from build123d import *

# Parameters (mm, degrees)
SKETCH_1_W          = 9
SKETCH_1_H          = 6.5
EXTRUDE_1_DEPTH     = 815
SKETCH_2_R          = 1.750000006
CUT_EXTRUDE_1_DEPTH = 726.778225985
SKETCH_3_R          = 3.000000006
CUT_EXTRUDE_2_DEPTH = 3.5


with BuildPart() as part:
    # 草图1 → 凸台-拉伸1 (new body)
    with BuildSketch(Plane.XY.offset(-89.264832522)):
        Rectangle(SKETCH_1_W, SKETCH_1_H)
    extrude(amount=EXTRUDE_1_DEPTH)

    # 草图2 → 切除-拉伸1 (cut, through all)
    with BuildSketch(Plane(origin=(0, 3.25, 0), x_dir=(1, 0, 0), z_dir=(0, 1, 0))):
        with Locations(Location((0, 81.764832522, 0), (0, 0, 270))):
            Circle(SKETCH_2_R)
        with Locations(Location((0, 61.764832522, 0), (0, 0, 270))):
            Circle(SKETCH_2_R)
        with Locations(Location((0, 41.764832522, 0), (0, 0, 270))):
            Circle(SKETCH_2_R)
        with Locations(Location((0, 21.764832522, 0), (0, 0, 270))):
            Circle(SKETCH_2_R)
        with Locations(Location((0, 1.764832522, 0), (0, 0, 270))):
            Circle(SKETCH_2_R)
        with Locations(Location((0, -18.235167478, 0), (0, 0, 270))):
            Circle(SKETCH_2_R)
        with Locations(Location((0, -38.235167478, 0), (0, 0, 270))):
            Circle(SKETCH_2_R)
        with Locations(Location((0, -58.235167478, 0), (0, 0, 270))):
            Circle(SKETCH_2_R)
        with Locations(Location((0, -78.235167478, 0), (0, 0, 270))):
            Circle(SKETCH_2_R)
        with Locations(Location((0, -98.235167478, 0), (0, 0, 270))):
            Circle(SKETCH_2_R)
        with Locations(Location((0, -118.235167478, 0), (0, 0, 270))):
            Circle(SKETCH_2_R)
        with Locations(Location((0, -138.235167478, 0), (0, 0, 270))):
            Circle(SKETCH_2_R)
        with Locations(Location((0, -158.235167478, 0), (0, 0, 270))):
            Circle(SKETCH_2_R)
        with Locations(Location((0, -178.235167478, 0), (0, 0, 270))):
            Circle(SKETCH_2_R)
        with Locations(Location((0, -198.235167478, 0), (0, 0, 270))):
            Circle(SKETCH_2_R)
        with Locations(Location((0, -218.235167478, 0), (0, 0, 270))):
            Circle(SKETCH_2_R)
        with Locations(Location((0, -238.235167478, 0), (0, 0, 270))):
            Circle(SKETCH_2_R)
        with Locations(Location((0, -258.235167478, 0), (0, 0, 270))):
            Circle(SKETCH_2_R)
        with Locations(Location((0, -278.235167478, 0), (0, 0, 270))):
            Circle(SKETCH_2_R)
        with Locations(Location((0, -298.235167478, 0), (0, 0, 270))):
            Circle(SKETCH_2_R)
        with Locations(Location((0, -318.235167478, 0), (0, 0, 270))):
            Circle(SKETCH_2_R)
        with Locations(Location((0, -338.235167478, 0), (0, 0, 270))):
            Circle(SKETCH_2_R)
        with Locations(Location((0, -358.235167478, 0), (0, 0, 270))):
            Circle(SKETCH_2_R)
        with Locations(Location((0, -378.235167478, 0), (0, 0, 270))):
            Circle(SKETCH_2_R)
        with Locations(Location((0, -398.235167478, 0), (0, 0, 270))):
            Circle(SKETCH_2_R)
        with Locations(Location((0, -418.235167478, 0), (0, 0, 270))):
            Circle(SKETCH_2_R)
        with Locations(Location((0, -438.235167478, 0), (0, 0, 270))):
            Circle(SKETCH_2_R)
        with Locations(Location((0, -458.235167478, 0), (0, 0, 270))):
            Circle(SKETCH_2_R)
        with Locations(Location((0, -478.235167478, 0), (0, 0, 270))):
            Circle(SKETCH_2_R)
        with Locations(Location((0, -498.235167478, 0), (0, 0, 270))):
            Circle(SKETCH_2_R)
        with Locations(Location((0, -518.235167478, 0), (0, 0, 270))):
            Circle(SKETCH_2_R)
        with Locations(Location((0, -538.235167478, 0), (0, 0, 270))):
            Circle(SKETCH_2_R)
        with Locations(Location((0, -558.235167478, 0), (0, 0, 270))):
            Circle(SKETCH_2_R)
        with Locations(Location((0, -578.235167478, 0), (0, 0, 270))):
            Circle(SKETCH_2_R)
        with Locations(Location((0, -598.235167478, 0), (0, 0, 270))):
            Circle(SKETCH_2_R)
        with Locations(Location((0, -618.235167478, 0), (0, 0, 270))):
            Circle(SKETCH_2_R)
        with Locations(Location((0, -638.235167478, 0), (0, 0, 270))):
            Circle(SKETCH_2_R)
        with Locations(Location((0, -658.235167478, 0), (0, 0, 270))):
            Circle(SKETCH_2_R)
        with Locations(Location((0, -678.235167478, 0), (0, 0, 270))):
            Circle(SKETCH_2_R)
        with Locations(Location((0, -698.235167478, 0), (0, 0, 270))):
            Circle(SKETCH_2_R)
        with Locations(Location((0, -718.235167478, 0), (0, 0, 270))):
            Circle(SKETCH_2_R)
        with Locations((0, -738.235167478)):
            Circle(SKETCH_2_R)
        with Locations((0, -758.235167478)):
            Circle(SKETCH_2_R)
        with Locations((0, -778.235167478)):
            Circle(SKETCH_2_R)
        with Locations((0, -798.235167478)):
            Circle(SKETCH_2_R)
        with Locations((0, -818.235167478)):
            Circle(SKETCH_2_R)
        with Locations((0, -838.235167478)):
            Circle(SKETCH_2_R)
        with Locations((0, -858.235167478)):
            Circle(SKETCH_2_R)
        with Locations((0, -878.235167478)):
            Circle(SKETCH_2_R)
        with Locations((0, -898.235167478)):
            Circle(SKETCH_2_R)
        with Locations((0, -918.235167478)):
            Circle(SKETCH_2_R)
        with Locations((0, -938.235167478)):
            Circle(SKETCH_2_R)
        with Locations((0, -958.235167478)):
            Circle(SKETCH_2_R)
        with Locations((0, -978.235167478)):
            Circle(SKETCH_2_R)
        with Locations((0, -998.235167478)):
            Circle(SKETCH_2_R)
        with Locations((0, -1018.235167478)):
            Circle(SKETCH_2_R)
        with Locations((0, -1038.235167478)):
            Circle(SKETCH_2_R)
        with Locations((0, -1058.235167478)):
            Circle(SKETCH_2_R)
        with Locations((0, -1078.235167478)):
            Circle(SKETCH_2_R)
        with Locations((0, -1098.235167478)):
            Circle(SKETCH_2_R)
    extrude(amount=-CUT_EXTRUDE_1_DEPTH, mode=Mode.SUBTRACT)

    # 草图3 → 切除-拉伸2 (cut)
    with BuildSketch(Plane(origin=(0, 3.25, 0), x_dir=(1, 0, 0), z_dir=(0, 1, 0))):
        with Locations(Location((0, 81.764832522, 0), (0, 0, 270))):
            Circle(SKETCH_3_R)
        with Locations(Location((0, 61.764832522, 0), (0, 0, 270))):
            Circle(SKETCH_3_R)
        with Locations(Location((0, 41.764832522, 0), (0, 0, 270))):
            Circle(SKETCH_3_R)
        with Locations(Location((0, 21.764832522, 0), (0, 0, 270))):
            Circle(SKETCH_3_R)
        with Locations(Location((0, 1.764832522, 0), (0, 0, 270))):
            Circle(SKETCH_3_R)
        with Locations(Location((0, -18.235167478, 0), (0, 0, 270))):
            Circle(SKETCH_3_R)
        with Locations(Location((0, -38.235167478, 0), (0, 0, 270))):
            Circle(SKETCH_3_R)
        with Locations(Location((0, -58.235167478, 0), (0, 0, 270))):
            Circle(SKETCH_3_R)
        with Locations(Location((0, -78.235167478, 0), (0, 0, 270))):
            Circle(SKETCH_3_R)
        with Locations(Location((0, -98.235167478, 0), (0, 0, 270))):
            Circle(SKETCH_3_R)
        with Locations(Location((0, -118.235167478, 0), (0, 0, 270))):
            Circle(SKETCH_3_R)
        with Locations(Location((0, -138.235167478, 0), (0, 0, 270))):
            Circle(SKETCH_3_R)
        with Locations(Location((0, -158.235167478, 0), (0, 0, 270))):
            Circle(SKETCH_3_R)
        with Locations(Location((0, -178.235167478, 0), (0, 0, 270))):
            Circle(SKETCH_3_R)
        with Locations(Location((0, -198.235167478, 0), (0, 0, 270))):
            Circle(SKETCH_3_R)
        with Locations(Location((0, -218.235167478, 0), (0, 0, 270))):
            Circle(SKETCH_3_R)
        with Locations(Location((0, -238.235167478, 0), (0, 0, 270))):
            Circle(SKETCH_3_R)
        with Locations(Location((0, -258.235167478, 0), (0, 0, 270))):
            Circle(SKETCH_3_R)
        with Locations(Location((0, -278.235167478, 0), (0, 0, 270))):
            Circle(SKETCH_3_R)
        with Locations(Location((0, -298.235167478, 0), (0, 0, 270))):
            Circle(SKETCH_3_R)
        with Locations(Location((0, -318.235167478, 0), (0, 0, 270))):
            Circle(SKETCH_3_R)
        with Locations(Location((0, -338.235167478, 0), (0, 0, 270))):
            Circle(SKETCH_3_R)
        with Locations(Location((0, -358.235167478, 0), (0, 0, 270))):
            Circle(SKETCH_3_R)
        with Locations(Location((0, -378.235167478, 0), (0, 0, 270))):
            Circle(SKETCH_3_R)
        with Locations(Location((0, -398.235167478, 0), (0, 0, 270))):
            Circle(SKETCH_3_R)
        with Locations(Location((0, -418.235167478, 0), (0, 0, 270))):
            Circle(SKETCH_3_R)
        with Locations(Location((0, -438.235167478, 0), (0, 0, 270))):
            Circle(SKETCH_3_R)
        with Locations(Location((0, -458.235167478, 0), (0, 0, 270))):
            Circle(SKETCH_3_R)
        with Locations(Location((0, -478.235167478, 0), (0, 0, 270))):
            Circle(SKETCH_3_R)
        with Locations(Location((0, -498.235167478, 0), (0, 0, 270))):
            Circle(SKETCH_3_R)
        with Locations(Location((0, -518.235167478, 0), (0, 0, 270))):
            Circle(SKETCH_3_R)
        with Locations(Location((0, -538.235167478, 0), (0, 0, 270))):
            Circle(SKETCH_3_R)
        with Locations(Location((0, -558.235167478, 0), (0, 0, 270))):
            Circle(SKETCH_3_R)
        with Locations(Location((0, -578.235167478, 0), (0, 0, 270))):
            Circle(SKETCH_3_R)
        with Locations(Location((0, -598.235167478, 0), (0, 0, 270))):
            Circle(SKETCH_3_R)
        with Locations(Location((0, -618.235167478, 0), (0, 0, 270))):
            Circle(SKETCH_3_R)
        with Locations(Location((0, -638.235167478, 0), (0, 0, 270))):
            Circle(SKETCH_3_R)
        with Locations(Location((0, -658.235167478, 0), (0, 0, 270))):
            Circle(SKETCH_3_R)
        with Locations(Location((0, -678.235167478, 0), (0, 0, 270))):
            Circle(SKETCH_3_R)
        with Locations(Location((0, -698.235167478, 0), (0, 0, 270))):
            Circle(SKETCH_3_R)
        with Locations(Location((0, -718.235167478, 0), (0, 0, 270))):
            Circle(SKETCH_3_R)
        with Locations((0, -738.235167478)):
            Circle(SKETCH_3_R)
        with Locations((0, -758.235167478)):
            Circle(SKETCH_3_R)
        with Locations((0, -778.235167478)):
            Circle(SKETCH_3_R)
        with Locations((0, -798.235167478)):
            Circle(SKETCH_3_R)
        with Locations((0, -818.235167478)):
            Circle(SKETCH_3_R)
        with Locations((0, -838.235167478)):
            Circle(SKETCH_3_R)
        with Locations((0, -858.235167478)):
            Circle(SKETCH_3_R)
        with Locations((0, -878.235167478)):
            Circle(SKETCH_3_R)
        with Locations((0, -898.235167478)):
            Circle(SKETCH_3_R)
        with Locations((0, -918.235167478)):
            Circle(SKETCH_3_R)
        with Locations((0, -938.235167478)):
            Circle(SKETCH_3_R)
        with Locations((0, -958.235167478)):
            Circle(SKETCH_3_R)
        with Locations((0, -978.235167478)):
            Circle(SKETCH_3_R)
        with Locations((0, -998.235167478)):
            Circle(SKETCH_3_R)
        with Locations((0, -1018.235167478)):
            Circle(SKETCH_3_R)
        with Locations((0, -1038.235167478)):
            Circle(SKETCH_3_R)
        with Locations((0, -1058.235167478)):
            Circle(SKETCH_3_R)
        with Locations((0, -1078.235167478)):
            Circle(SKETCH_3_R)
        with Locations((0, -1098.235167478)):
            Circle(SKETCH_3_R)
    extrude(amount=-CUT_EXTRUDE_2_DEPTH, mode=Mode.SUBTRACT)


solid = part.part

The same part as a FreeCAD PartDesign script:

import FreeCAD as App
import Part
import Sketcher
from FreeCAD import Vector


def add_polygon(sketch, points):
    """Adds a closed chain of lines whose ends are joined by coincident constraints."""
    first, n = sketch.GeometryCount, len(points)
    for a, b in zip(points, points[1:] + points[:1]):
        sketch.addGeometry(Part.LineSegment(App.Vector(*a, 0), App.Vector(*b, 0)), False)
    for i in range(n):
        sketch.addConstraint(Sketcher.Constraint("Coincident", first + i, 2, first + (i + 1) % n, 1))

doc = App.newDocument("Part")
params = doc.addObject("Spreadsheet::Sheet", "Params")
for row, (alias, value) in enumerate([
    ("sketch1_width", "9 mm"),
    ("sketch1_height", "6.5 mm"),
    ("pad1_length", "815 mm"),
    ("sketch2_diameter", "3.5 mm"),
    ("sketch3_diameter", "6 mm"),
    ("pocket2_length", "3.5 mm"),
], start=1):
    params.set(f"A{row}", alias)
    params.set(f"B{row}", "=" + value)
    params.setAlias(f"B{row}", alias)

body = doc.addObject("PartDesign::Body", "Body")

sketch1 = doc.addObject("Sketcher::SketchObject", "Sketch")
body.addObject(sketch1)
sketch1.AttachmentSupport = (doc.XY_Plane, [""])
sketch1.MapMode = "FlatFace"
sketch1.AttachmentOffset = App.Placement(Vector(0, 0, -89.264833), App.Rotation())
add_polygon(sketch1, [(-4, 3), (-4, -3), (4, -3), (4, 3)])
sketch1.addConstraint(Sketcher.Constraint("Vertical", 0))
sketch1.addConstraint(Sketcher.Constraint("Horizontal", 1))
sketch1.addConstraint(Sketcher.Constraint("Vertical", 2))
sketch1.addConstraint(Sketcher.Constraint("Horizontal", 3))
sketch1.addConstraint(Sketcher.Constraint("Symmetric", 0, 2, 2, 2, -1, 1))
sketch1.addConstraint(Sketcher.Constraint("DistanceX", 1, 1, 1, 2, 9.0))
sketch1.addConstraint(Sketcher.Constraint("DistanceY", 0, 2, 0, 1, 6.5))
sketch1.setExpression("Constraints[9]", "Params.sketch1_width")
sketch1.setExpression("Constraints[10]", "Params.sketch1_height")
pad1 = doc.addObject("PartDesign::Pad", "Pad")
body.addObject(pad1)
pad1.Profile = sketch1
pad1.setExpression("Length", "Params.pad1_length")

sketch2 = doc.addObject("Sketcher::SketchObject", "Sketch001")
body.addObject(sketch2)
sketch2.AttachmentSupport = (doc.XZ_Plane, [""])
sketch2.MapMode = "FlatFace"
sketch2.AttachmentOffset = App.Placement(Vector(0, 0, -3.25), App.Rotation())
sketch2.addGeometry(Part.Circle(Vector(0, -81.8, 0), Vector(0, 0, 1), 1.8), False)
sketch2.addGeometry(Part.Circle(Vector(0, -61.8, 0), Vector(0, 0, 1), 1.8), False)
sketch2.addGeometry(Part.Circle(Vector(0, -41.8, 0), Vector(0, 0, 1), 1.8), False)
sketch2.addGeometry(Part.Circle(Vector(0, -21.8, 0), Vector(0, 0, 1), 1.8), False)
sketch2.addGeometry(Part.Circle(Vector(0, -1.8, 0), Vector(0, 0, 1), 1.8), False)
sketch2.addGeometry(Part.Circle(Vector(0, 18.2, 0), Vector(0, 0, 1), 1.8), False)
sketch2.addGeometry(Part.Circle(Vector(0, 38.2, 0), Vector(0, 0, 1), 1.8), False)
sketch2.addGeometry(Part.Circle(Vector(0, 58.2, 0), Vector(0, 0, 1), 1.8), False)
sketch2.addGeometry(Part.Circle(Vector(0, 78.2, 0), Vector(0, 0, 1), 1.8), False)
sketch2.addGeometry(Part.Circle(Vector(0, 98.2, 0), Vector(0, 0, 1), 1.8), False)
sketch2.addGeometry(Part.Circle(Vector(0, 118.2, 0), Vector(0, 0, 1), 1.8), False)
sketch2.addGeometry(Part.Circle(Vector(0, 138.2, 0), Vector(0, 0, 1), 1.8), False)
sketch2.addGeometry(Part.Circle(Vector(0, 158.2, 0), Vector(0, 0, 1), 1.8), False)
sketch2.addGeometry(Part.Circle(Vector(0, 178.2, 0), Vector(0, 0, 1), 1.8), False)
sketch2.addGeometry(Part.Circle(Vector(0, 198.2, 0), Vector(0, 0, 1), 1.8), False)
sketch2.addGeometry(Part.Circle(Vector(0, 218.2, 0), Vector(0, 0, 1), 1.8), False)
sketch2.addGeometry(Part.Circle(Vector(0, 238.2, 0), Vector(0, 0, 1), 1.8), False)
sketch2.addGeometry(Part.Circle(Vector(0, 258.2, 0), Vector(0, 0, 1), 1.8), False)
sketch2.addGeometry(Part.Circle(Vector(0, 278.2, 0), Vector(0, 0, 1), 1.8), False)
sketch2.addGeometry(Part.Circle(Vector(0, 298.2, 0), Vector(0, 0, 1), 1.8), False)
sketch2.addGeometry(Part.Circle(Vector(0, 318.2, 0), Vector(0, 0, 1), 1.8), False)
sketch2.addGeometry(Part.Circle(Vector(0, 338.2, 0), Vector(0, 0, 1), 1.8), False)
sketch2.addGeometry(Part.Circle(Vector(0, 358.2, 0), Vector(0, 0, 1), 1.8), False)
sketch2.addGeometry(Part.Circle(Vector(0, 378.2, 0), Vector(0, 0, 1), 1.8), False)
sketch2.addGeometry(Part.Circle(Vector(0, 398.2, 0), Vector(0, 0, 1), 1.8), False)
sketch2.addGeometry(Part.Circle(Vector(0, 418.2, 0), Vector(0, 0, 1), 1.8), False)
sketch2.addGeometry(Part.Circle(Vector(0, 438.2, 0), Vector(0, 0, 1), 1.8), False)
sketch2.addGeometry(Part.Circle(Vector(0, 458.2, 0), Vector(0, 0, 1), 1.8), False)
sketch2.addGeometry(Part.Circle(Vector(0, 478.2, 0), Vector(0, 0, 1), 1.8), False)
sketch2.addGeometry(Part.Circle(Vector(0, 498.2, 0), Vector(0, 0, 1), 1.8), False)
sketch2.addGeometry(Part.Circle(Vector(0, 518.2, 0), Vector(0, 0, 1), 1.8), False)
sketch2.addGeometry(Part.Circle(Vector(0, 538.2, 0), Vector(0, 0, 1), 1.8), False)
sketch2.addGeometry(Part.Circle(Vector(0, 558.2, 0), Vector(0, 0, 1), 1.8), False)
sketch2.addGeometry(Part.Circle(Vector(0, 578.2, 0), Vector(0, 0, 1), 1.8), False)
sketch2.addGeometry(Part.Circle(Vector(0, 598.2, 0), Vector(0, 0, 1), 1.8), False)
sketch2.addGeometry(Part.Circle(Vector(0, 618.2, 0), Vector(0, 0, 1), 1.8), False)
sketch2.addGeometry(Part.Circle(Vector(0, 638.2, 0), Vector(0, 0, 1), 1.8), False)
sketch2.addGeometry(Part.Circle(Vector(0, 658.2, 0), Vector(0, 0, 1), 1.8), False)
sketch2.addGeometry(Part.Circle(Vector(0, 678.2, 0), Vector(0, 0, 1), 1.8), False)
sketch2.addGeometry(Part.Circle(Vector(0, 698.2, 0), Vector(0, 0, 1), 1.8), False)
sketch2.addGeometry(Part.Circle(Vector(0, 718.2, 0), Vector(0, 0, 1), 1.8), False)
sketch2.addGeometry(Part.Circle(Vector(0, 738.2, 0), Vector(0, 0, 1), 1.8), False)
sketch2.addGeometry(Part.Circle(Vector(0, 758.2, 0), Vector(0, 0, 1), 1.8), False)
sketch2.addGeometry(Part.Circle(Vector(0, 778.2, 0), Vector(0, 0, 1), 1.8), False)
sketch2.addGeometry(Part.Circle(Vector(0, 798.2, 0), Vector(0, 0, 1), 1.8), False)
sketch2.addGeometry(Part.Circle(Vector(0, 818.2, 0), Vector(0, 0, 1), 1.8), False)
sketch2.addGeometry(Part.Circle(Vector(0, 838.2, 0), Vector(0, 0, 1), 1.8), False)
sketch2.addGeometry(Part.Circle(Vector(0, 858.2, 0), Vector(0, 0, 1), 1.8), False)
sketch2.addGeometry(Part.Circle(Vector(0, 878.2, 0), Vector(0, 0, 1), 1.8), False)
sketch2.addGeometry(Part.Circle(Vector(0, 898.2, 0), Vector(0, 0, 1), 1.8), False)
sketch2.addGeometry(Part.Circle(Vector(0, 918.2, 0), Vector(0, 0, 1), 1.8), False)
sketch2.addGeometry(Part.Circle(Vector(0, 938.2, 0), Vector(0, 0, 1), 1.8), False)
sketch2.addGeometry(Part.Circle(Vector(0, 958.2, 0), Vector(0, 0, 1), 1.8), False)
sketch2.addGeometry(Part.Circle(Vector(0, 978.2, 0), Vector(0, 0, 1), 1.8), False)
sketch2.addGeometry(Part.Circle(Vector(0, 998.2, 0), Vector(0, 0, 1), 1.8), False)
sketch2.addGeometry(Part.Circle(Vector(0, 1018.2, 0), Vector(0, 0, 1), 1.8), False)
sketch2.addGeometry(Part.Circle(Vector(0, 1038.2, 0), Vector(0, 0, 1), 1.8), False)
sketch2.addGeometry(Part.Circle(Vector(0, 1058.2, 0), Vector(0, 0, 1), 1.8), False)
sketch2.addGeometry(Part.Circle(Vector(0, 1078.2, 0), Vector(0, 0, 1), 1.8), False)
sketch2.addGeometry(Part.Circle(Vector(0, 1098.2, 0), Vector(0, 0, 1), 1.8), False)
sketch2.addConstraint(Sketcher.Constraint("Equal", 0, 1))
sketch2.addConstraint(Sketcher.Constraint("Equal", 1, 2))
sketch2.addConstraint(Sketcher.Constraint("Equal", 2, 3))
sketch2.addConstraint(Sketcher.Constraint("Equal", 3, 4))
sketch2.addConstraint(Sketcher.Constraint("Equal", 4, 5))
sketch2.addConstraint(Sketcher.Constraint("Equal", 5, 6))
sketch2.addConstraint(Sketcher.Constraint("Equal", 6, 7))
sketch2.addConstraint(Sketcher.Constraint("Equal", 7, 8))
sketch2.addConstraint(Sketcher.Constraint("Equal", 8, 9))
sketch2.addConstraint(Sketcher.Constraint("Equal", 9, 10))
sketch2.addConstraint(Sketcher.Constraint("Equal", 10, 11))
sketch2.addConstraint(Sketcher.Constraint("Equal", 11, 12))
sketch2.addConstraint(Sketcher.Constraint("Equal", 12, 13))
sketch2.addConstraint(Sketcher.Constraint("Equal", 13, 14))
sketch2.addConstraint(Sketcher.Constraint("Equal", 14, 15))
sketch2.addConstraint(Sketcher.Constraint("Equal", 15, 16))
sketch2.addConstraint(Sketcher.Constraint("Equal", 16, 17))
sketch2.addConstraint(Sketcher.Constraint("Equal", 17, 18))
sketch2.addConstraint(Sketcher.Constraint("Equal", 18, 19))
sketch2.addConstraint(Sketcher.Constraint("Equal", 19, 20))
sketch2.addConstraint(Sketcher.Constraint("Equal", 20, 21))
sketch2.addConstraint(Sketcher.Constraint("Equal", 21, 22))
sketch2.addConstraint(Sketcher.Constraint("Equal", 22, 23))
sketch2.addConstraint(Sketcher.Constraint("Equal", 23, 24))
sketch2.addConstraint(Sketcher.Constraint("Equal", 24, 25))
sketch2.addConstraint(Sketcher.Constraint("Equal", 25, 26))
sketch2.addConstraint(Sketcher.Constraint("Equal", 26, 27))
sketch2.addConstraint(Sketcher.Constraint("Equal", 27, 28))
sketch2.addConstraint(Sketcher.Constraint("Equal", 28, 29))
sketch2.addConstraint(Sketcher.Constraint("Equal", 29, 30))
sketch2.addConstraint(Sketcher.Constraint("Equal", 30, 31))
sketch2.addConstraint(Sketcher.Constraint("Equal", 31, 32))
sketch2.addConstraint(Sketcher.Constraint("Equal", 32, 33))
sketch2.addConstraint(Sketcher.Constraint("Equal", 33, 34))
sketch2.addConstraint(Sketcher.Constraint("Equal", 34, 35))
sketch2.addConstraint(Sketcher.Constraint("Equal", 35, 36))
sketch2.addConstraint(Sketcher.Constraint("Equal", 36, 37))
sketch2.addConstraint(Sketcher.Constraint("Equal", 37, 38))
sketch2.addConstraint(Sketcher.Constraint("Equal", 38, 39))
sketch2.addConstraint(Sketcher.Constraint("Equal", 39, 40))
sketch2.addConstraint(Sketcher.Constraint("Equal", 40, 41))
sketch2.addConstraint(Sketcher.Constraint("Equal", 41, 42))
sketch2.addConstraint(Sketcher.Constraint("Equal", 42, 43))
sketch2.addConstraint(Sketcher.Constraint("Equal", 43, 44))
sketch2.addConstraint(Sketcher.Constraint("Equal", 44, 45))
sketch2.addConstraint(Sketcher.Constraint("Equal", 45, 46))
sketch2.addConstraint(Sketcher.Constraint("Equal", 46, 47))
sketch2.addConstraint(Sketcher.Constraint("Equal", 47, 48))
sketch2.addConstraint(Sketcher.Constraint("Equal", 48, 49))
sketch2.addConstraint(Sketcher.Constraint("Equal", 49, 50))
sketch2.addConstraint(Sketcher.Constraint("Equal", 50, 51))
sketch2.addConstraint(Sketcher.Constraint("Equal", 51, 52))
sketch2.addConstraint(Sketcher.Constraint("Equal", 52, 53))
sketch2.addConstraint(Sketcher.Constraint("Equal", 53, 54))
sketch2.addConstraint(Sketcher.Constraint("Equal", 54, 55))
sketch2.addConstraint(Sketcher.Constraint("Equal", 55, 56))
sketch2.addConstraint(Sketcher.Constraint("Equal", 56, 57))
sketch2.addConstraint(Sketcher.Constraint("Equal", 57, 58))
sketch2.addConstraint(Sketcher.Constraint("Equal", 58, 59))
sketch2.addConstraint(Sketcher.Constraint("PointOnObject", 0, 3, -2))
sketch2.addConstraint(Sketcher.Constraint("PointOnObject", 1, 3, -2))
sketch2.addConstraint(Sketcher.Constraint("PointOnObject", 2, 3, -2))
sketch2.addConstraint(Sketcher.Constraint("PointOnObject", 3, 3, -2))
sketch2.addConstraint(Sketcher.Constraint("PointOnObject", 4, 3, -2))
sketch2.addConstraint(Sketcher.Constraint("PointOnObject", 5, 3, -2))
sketch2.addConstraint(Sketcher.Constraint("PointOnObject", 6, 3, -2))
sketch2.addConstraint(Sketcher.Constraint("PointOnObject", 7, 3, -2))
sketch2.addConstraint(Sketcher.Constraint("PointOnObject", 8, 3, -2))
sketch2.addConstraint(Sketcher.Constraint("PointOnObject", 9, 3, -2))
sketch2.addConstraint(Sketcher.Constraint("PointOnObject", 10, 3, -2))
sketch2.addConstraint(Sketcher.Constraint("PointOnObject", 11, 3, -2))
sketch2.addConstraint(Sketcher.Constraint("PointOnObject", 12, 3, -2))
sketch2.addConstraint(Sketcher.Constraint("PointOnObject", 13, 3, -2))
sketch2.addConstraint(Sketcher.Constraint("PointOnObject", 14, 3, -2))
sketch2.addConstraint(Sketcher.Constraint("PointOnObject", 15, 3, -2))
sketch2.addConstraint(Sketcher.Constraint("PointOnObject", 16, 3, -2))
sketch2.addConstraint(Sketcher.Constraint("PointOnObject", 17, 3, -2))
sketch2.addConstraint(Sketcher.Constraint("PointOnObject", 18, 3, -2))
sketch2.addConstraint(Sketcher.Constraint("PointOnObject", 19, 3, -2))
sketch2.addConstraint(Sketcher.Constraint("PointOnObject", 20, 3, -2))
sketch2.addConstraint(Sketcher.Constraint("PointOnObject", 21, 3, -2))
sketch2.addConstraint(Sketcher.Constraint("PointOnObject", 22, 3, -2))
sketch2.addConstraint(Sketcher.Constraint("PointOnObject", 23, 3, -2))
sketch2.addConstraint(Sketcher.Constraint("PointOnObject", 24, 3, -2))
sketch2.addConstraint(Sketcher.Constraint("PointOnObject", 25, 3, -2))
sketch2.addConstraint(Sketcher.Constraint("PointOnObject", 26, 3, -2))
sketch2.addConstraint(Sketcher.Constraint("PointOnObject", 27, 3, -2))
sketch2.addConstraint(Sketcher.Constraint("PointOnObject", 28, 3, -2))
sketch2.addConstraint(Sketcher.Constraint("PointOnObject", 29, 3, -2))
sketch2.addConstraint(Sketcher.Constraint("PointOnObject", 30, 3, -2))
sketch2.addConstraint(Sketcher.Constraint("PointOnObject", 31, 3, -2))
sketch2.addConstraint(Sketcher.Constraint("PointOnObject", 32, 3, -2))
sketch2.addConstraint(Sketcher.Constraint("PointOnObject", 33, 3, -2))
sketch2.addConstraint(Sketcher.Constraint("PointOnObject", 34, 3, -2))
sketch2.addConstraint(Sketcher.Constraint("PointOnObject", 35, 3, -2))
sketch2.addConstraint(Sketcher.Constraint("PointOnObject", 36, 3, -2))
sketch2.addConstraint(Sketcher.Constraint("PointOnObject", 37, 3, -2))
sketch2.addConstraint(Sketcher.Constraint("PointOnObject", 38, 3, -2))
sketch2.addConstraint(Sketcher.Constraint("PointOnObject", 39, 3, -2))
sketch2.addConstraint(Sketcher.Constraint("PointOnObject", 40, 3, -2))
sketch2.addConstraint(Sketcher.Constraint("PointOnObject", 41, 3, -2))
sketch2.addConstraint(Sketcher.Constraint("PointOnObject", 42, 3, -2))
sketch2.addConstraint(Sketcher.Constraint("PointOnObject", 43, 3, -2))
sketch2.addConstraint(Sketcher.Constraint("PointOnObject", 44, 3, -2))
sketch2.addConstraint(Sketcher.Constraint("PointOnObject", 45, 3, -2))
sketch2.addConstraint(Sketcher.Constraint("PointOnObject", 46, 3, -2))
sketch2.addConstraint(Sketcher.Constraint("PointOnObject", 47, 3, -2))
sketch2.addConstraint(Sketcher.Constraint("PointOnObject", 48, 3, -2))
sketch2.addConstraint(Sketcher.Constraint("PointOnObject", 49, 3, -2))
sketch2.addConstraint(Sketcher.Constraint("PointOnObject", 50, 3, -2))
sketch2.addConstraint(Sketcher.Constraint("PointOnObject", 51, 3, -2))
sketch2.addConstraint(Sketcher.Constraint("PointOnObject", 52, 3, -2))
sketch2.addConstraint(Sketcher.Constraint("PointOnObject", 53, 3, -2))
sketch2.addConstraint(Sketcher.Constraint("PointOnObject", 54, 3, -2))
sketch2.addConstraint(Sketcher.Constraint("PointOnObject", 55, 3, -2))
sketch2.addConstraint(Sketcher.Constraint("PointOnObject", 56, 3, -2))
sketch2.addConstraint(Sketcher.Constraint("PointOnObject", 57, 3, -2))
sketch2.addConstraint(Sketcher.Constraint("PointOnObject", 58, 3, -2))
sketch2.addConstraint(Sketcher.Constraint("PointOnObject", 59, 3, -2))
sketch2.addConstraint(Sketcher.Constraint("Diameter", 0, 3.5))
sketch2.addConstraint(Sketcher.Constraint("DistanceY", 0, 3, 1, 3, 20.0))
sketch2.addConstraint(Sketcher.Constraint("DistanceY", 1, 3, 2, 3, 20.0))
sketch2.addConstraint(Sketcher.Constraint("DistanceY", 2, 3, 3, 3, 20.0))
sketch2.addConstraint(Sketcher.Constraint("DistanceY", 3, 3, 4, 3, 20.0))
sketch2.addConstraint(Sketcher.Constraint("DistanceY", 4, 3, 5, 3, 20.0))
sketch2.addConstraint(Sketcher.Constraint("DistanceY", 5, 3, 6, 3, 20.0))
sketch2.addConstraint(Sketcher.Constraint("DistanceY", 6, 3, 7, 3, 20.0))
sketch2.addConstraint(Sketcher.Constraint("DistanceY", 7, 3, 8, 3, 20.0))
sketch2.addConstraint(Sketcher.Constraint("DistanceY", 8, 3, 9, 3, 20.0))
sketch2.addConstraint(Sketcher.Constraint("DistanceY", 9, 3, 10, 3, 20.0))
sketch2.addConstraint(Sketcher.Constraint("DistanceY", 10, 3, 11, 3, 20.0))
sketch2.addConstraint(Sketcher.Constraint("DistanceY", 11, 3, 12, 3, 20.0))
sketch2.addConstraint(Sketcher.Constraint("DistanceY", 12, 3, 13, 3, 20.0))
sketch2.addConstraint(Sketcher.Constraint("DistanceY", 13, 3, 14, 3, 20.0))
sketch2.addConstraint(Sketcher.Constraint("DistanceY", 14, 3, 15, 3, 20.0))
sketch2.addConstraint(Sketcher.Constraint("DistanceY", 15, 3, 16, 3, 20.0))
sketch2.addConstraint(Sketcher.Constraint("DistanceY", 16, 3, 17, 3, 20.0))
sketch2.addConstraint(Sketcher.Constraint("DistanceY", 17, 3, 18, 3, 20.0))
sketch2.addConstraint(Sketcher.Constraint("DistanceY", 18, 3, 19, 3, 20.0))
sketch2.addConstraint(Sketcher.Constraint("DistanceY", 19, 3, 20, 3, 20.0))
sketch2.addConstraint(Sketcher.Constraint("DistanceY", 20, 3, 21, 3, 20.0))
sketch2.addConstraint(Sketcher.Constraint("DistanceY", 21, 3, 22, 3, 20.0))
sketch2.addConstraint(Sketcher.Constraint("DistanceY", 22, 3, 23, 3, 20.0))
sketch2.addConstraint(Sketcher.Constraint("DistanceY", 23, 3, 24, 3, 20.0))
sketch2.addConstraint(Sketcher.Constraint("DistanceY", 24, 3, 25, 3, 20.0))
sketch2.addConstraint(Sketcher.Constraint("DistanceY", 25, 3, 26, 3, 20.0))
sketch2.addConstraint(Sketcher.Constraint("DistanceY", 26, 3, 27, 3, 20.0))
sketch2.addConstraint(Sketcher.Constraint("DistanceY", 27, 3, 28, 3, 20.0))
sketch2.addConstraint(Sketcher.Constraint("DistanceY", 28, 3, 29, 3, 20.0))
sketch2.addConstraint(Sketcher.Constraint("DistanceY", 29, 3, 30, 3, 20.0))
sketch2.addConstraint(Sketcher.Constraint("DistanceY", 30, 3, 31, 3, 20.0))
sketch2.addConstraint(Sketcher.Constraint("DistanceY", 31, 3, 32, 3, 20.0))
sketch2.addConstraint(Sketcher.Constraint("DistanceY", 32, 3, 33, 3, 20.0))
sketch2.addConstraint(Sketcher.Constraint("DistanceY", 33, 3, 34, 3, 20.0))
sketch2.addConstraint(Sketcher.Constraint("DistanceY", 34, 3, 35, 3, 20.0))
sketch2.addConstraint(Sketcher.Constraint("DistanceY", 35, 3, 36, 3, 20.0))
sketch2.addConstraint(Sketcher.Constraint("DistanceY", 36, 3, 37, 3, 20.0))
sketch2.addConstraint(Sketcher.Constraint("DistanceY", 37, 3, 38, 3, 20.0))
sketch2.addConstraint(Sketcher.Constraint("DistanceY", 38, 3, 39, 3, 20.0))
sketch2.addConstraint(Sketcher.Constraint("DistanceY", 39, 3, 40, 3, 20.0))
sketch2.addConstraint(Sketcher.Constraint("DistanceY", 40, 3, 41, 3, 20.0))
sketch2.addConstraint(Sketcher.Constraint("DistanceY", 41, 3, 42, 3, 20.0))
sketch2.addConstraint(Sketcher.Constraint("DistanceY", 42, 3, 43, 3, 20.0))
sketch2.addConstraint(Sketcher.Constraint("DistanceY", 43, 3, 44, 3, 20.0))
sketch2.addConstraint(Sketcher.Constraint("DistanceY", 44, 3, 45, 3, 20.0))
sketch2.addConstraint(Sketcher.Constraint("DistanceY", 45, 3, 46, 3, 20.0))
sketch2.addConstraint(Sketcher.Constraint("DistanceY", 46, 3, 47, 3, 20.0))
sketch2.addConstraint(Sketcher.Constraint("DistanceY", 47, 3, 48, 3, 20.0))
sketch2.addConstraint(Sketcher.Constraint("DistanceY", 48, 3, 49, 3, 20.0))
sketch2.addConstraint(Sketcher.Constraint("DistanceY", 49, 3, 50, 3, 20.0))
sketch2.addConstraint(Sketcher.Constraint("DistanceY", 50, 3, 51, 3, 20.0))
sketch2.addConstraint(Sketcher.Constraint("DistanceY", 51, 3, 52, 3, 20.0))
sketch2.addConstraint(Sketcher.Constraint("DistanceY", 52, 3, 53, 3, 20.0))
sketch2.addConstraint(Sketcher.Constraint("DistanceY", 53, 3, 54, 3, 20.0))
sketch2.addConstraint(Sketcher.Constraint("DistanceY", 54, 3, 55, 3, 20.0))
sketch2.addConstraint(Sketcher.Constraint("DistanceY", 55, 3, 56, 3, 20.0))
sketch2.addConstraint(Sketcher.Constraint("DistanceY", 56, 3, 57, 3, 20.0))
sketch2.addConstraint(Sketcher.Constraint("DistanceY", 57, 3, 58, 3, 20.0))
sketch2.addConstraint(Sketcher.Constraint("DistanceY", 58, 3, 59, 3, 20.0))
sketch2.addConstraint(Sketcher.Constraint("DistanceY", 0, 3, -1, 1, 81.764833))
sketch2.setExpression("Constraints[119]", "Params.sketch2_diameter")
pocket1 = doc.addObject("PartDesign::Pocket", "Pocket")
body.addObject(pocket1)
pocket1.Profile = sketch2
pocket1.Type = "ThroughAll"
pocket1.Reversed = True

sketch3 = doc.addObject("Sketcher::SketchObject", "Sketch002")
body.addObject(sketch3)
sketch3.AttachmentSupport = (doc.XZ_Plane, [""])
sketch3.MapMode = "FlatFace"
sketch3.AttachmentOffset = App.Placement(Vector(0, 0, -3.25), App.Rotation())
sketch3.addGeometry(Part.Circle(Vector(0, -81.8, 0), Vector(0, 0, 1), 3), False)
sketch3.addGeometry(Part.Circle(Vector(0, -61.8, 0), Vector(0, 0, 1), 3), False)
sketch3.addGeometry(Part.Circle(Vector(0, -41.8, 0), Vector(0, 0, 1), 3), False)
sketch3.addGeometry(Part.Circle(Vector(0, -21.8, 0), Vector(0, 0, 1), 3), False)
sketch3.addGeometry(Part.Circle(Vector(0, -1.8, 0), Vector(0, 0, 1), 3), False)
sketch3.addGeometry(Part.Circle(Vector(0, 18.2, 0), Vector(0, 0, 1), 3), False)
sketch3.addGeometry(Part.Circle(Vector(0, 38.2, 0), Vector(0, 0, 1), 3), False)
sketch3.addGeometry(Part.Circle(Vector(0, 58.2, 0), Vector(0, 0, 1), 3), False)
sketch3.addGeometry(Part.Circle(Vector(0, 78.2, 0), Vector(0, 0, 1), 3), False)
sketch3.addGeometry(Part.Circle(Vector(0, 98.2, 0), Vector(0, 0, 1), 3), False)
sketch3.addGeometry(Part.Circle(Vector(0, 118.2, 0), Vector(0, 0, 1), 3), False)
sketch3.addGeometry(Part.Circle(Vector(0, 138.2, 0), Vector(0, 0, 1), 3), False)
sketch3.addGeometry(Part.Circle(Vector(0, 158.2, 0), Vector(0, 0, 1), 3), False)
sketch3.addGeometry(Part.Circle(Vector(0, 178.2, 0), Vector(0, 0, 1), 3), False)
sketch3.addGeometry(Part.Circle(Vector(0, 198.2, 0), Vector(0, 0, 1), 3), False)
sketch3.addGeometry(Part.Circle(Vector(0, 218.2, 0), Vector(0, 0, 1), 3), False)
sketch3.addGeometry(Part.Circle(Vector(0, 238.2, 0), Vector(0, 0, 1), 3), False)
sketch3.addGeometry(Part.Circle(Vector(0, 258.2, 0), Vector(0, 0, 1), 3), False)
sketch3.addGeometry(Part.Circle(Vector(0, 278.2, 0), Vector(0, 0, 1), 3), False)
sketch3.addGeometry(Part.Circle(Vector(0, 298.2, 0), Vector(0, 0, 1), 3), False)
sketch3.addGeometry(Part.Circle(Vector(0, 318.2, 0), Vector(0, 0, 1), 3), False)
sketch3.addGeometry(Part.Circle(Vector(0, 338.2, 0), Vector(0, 0, 1), 3), False)
sketch3.addGeometry(Part.Circle(Vector(0, 358.2, 0), Vector(0, 0, 1), 3), False)
sketch3.addGeometry(Part.Circle(Vector(0, 378.2, 0), Vector(0, 0, 1), 3), False)
sketch3.addGeometry(Part.Circle(Vector(0, 398.2, 0), Vector(0, 0, 1), 3), False)
sketch3.addGeometry(Part.Circle(Vector(0, 418.2, 0), Vector(0, 0, 1), 3), False)
sketch3.addGeometry(Part.Circle(Vector(0, 438.2, 0), Vector(0, 0, 1), 3), False)
sketch3.addGeometry(Part.Circle(Vector(0, 458.2, 0), Vector(0, 0, 1), 3), False)
sketch3.addGeometry(Part.Circle(Vector(0, 478.2, 0), Vector(0, 0, 1), 3), False)
sketch3.addGeometry(Part.Circle(Vector(0, 498.2, 0), Vector(0, 0, 1), 3), False)
sketch3.addGeometry(Part.Circle(Vector(0, 518.2, 0), Vector(0, 0, 1), 3), False)
sketch3.addGeometry(Part.Circle(Vector(0, 538.2, 0), Vector(0, 0, 1), 3), False)
sketch3.addGeometry(Part.Circle(Vector(0, 558.2, 0), Vector(0, 0, 1), 3), False)
sketch3.addGeometry(Part.Circle(Vector(0, 578.2, 0), Vector(0, 0, 1), 3), False)
sketch3.addGeometry(Part.Circle(Vector(0, 598.2, 0), Vector(0, 0, 1), 3), False)
sketch3.addGeometry(Part.Circle(Vector(0, 618.2, 0), Vector(0, 0, 1), 3), False)
sketch3.addGeometry(Part.Circle(Vector(0, 638.2, 0), Vector(0, 0, 1), 3), False)
sketch3.addGeometry(Part.Circle(Vector(0, 658.2, 0), Vector(0, 0, 1), 3), False)
sketch3.addGeometry(Part.Circle(Vector(0, 678.2, 0), Vector(0, 0, 1), 3), False)
sketch3.addGeometry(Part.Circle(Vector(0, 698.2, 0), Vector(0, 0, 1), 3), False)
sketch3.addGeometry(Part.Circle(Vector(0, 718.2, 0), Vector(0, 0, 1), 3), False)
sketch3.addGeometry(Part.Circle(Vector(0, 738.2, 0), Vector(0, 0, 1), 3), False)
sketch3.addGeometry(Part.Circle(Vector(0, 758.2, 0), Vector(0, 0, 1), 3), False)
sketch3.addGeometry(Part.Circle(Vector(0, 778.2, 0), Vector(0, 0, 1), 3), False)
sketch3.addGeometry(Part.Circle(Vector(0, 798.2, 0), Vector(0, 0, 1), 3), False)
sketch3.addGeometry(Part.Circle(Vector(0, 818.2, 0), Vector(0, 0, 1), 3), False)
sketch3.addGeometry(Part.Circle(Vector(0, 838.2, 0), Vector(0, 0, 1), 3), False)
sketch3.addGeometry(Part.Circle(Vector(0, 858.2, 0), Vector(0, 0, 1), 3), False)
sketch3.addGeometry(Part.Circle(Vector(0, 878.2, 0), Vector(0, 0, 1), 3), False)
sketch3.addGeometry(Part.Circle(Vector(0, 898.2, 0), Vector(0, 0, 1), 3), False)
sketch3.addGeometry(Part.Circle(Vector(0, 918.2, 0), Vector(0, 0, 1), 3), False)
sketch3.addGeometry(Part.Circle(Vector(0, 938.2, 0), Vector(0, 0, 1), 3), False)
sketch3.addGeometry(Part.Circle(Vector(0, 958.2, 0), Vector(0, 0, 1), 3), False)
sketch3.addGeometry(Part.Circle(Vector(0, 978.2, 0), Vector(0, 0, 1), 3), False)
sketch3.addGeometry(Part.Circle(Vector(0, 998.2, 0), Vector(0, 0, 1), 3), False)
sketch3.addGeometry(Part.Circle(Vector(0, 1018.2, 0), Vector(0, 0, 1), 3), False)
sketch3.addGeometry(Part.Circle(Vector(0, 1038.2, 0), Vector(0, 0, 1), 3), False)
sketch3.addGeometry(Part.Circle(Vector(0, 1058.2, 0), Vector(0, 0, 1), 3), False)
sketch3.addGeometry(Part.Circle(Vector(0, 1078.2, 0), Vector(0, 0, 1), 3), False)
sketch3.addGeometry(Part.Circle(Vector(0, 1098.2, 0), Vector(0, 0, 1), 3), False)
sketch3.addConstraint(Sketcher.Constraint("Equal", 0, 1))
sketch3.addConstraint(Sketcher.Constraint("Equal", 1, 2))
sketch3.addConstraint(Sketcher.Constraint("Equal", 2, 3))
sketch3.addConstraint(Sketcher.Constraint("Equal", 3, 4))
sketch3.addConstraint(Sketcher.Constraint("Equal", 4, 5))
sketch3.addConstraint(Sketcher.Constraint("Equal", 5, 6))
sketch3.addConstraint(Sketcher.Constraint("Equal", 6, 7))
sketch3.addConstraint(Sketcher.Constraint("Equal", 7, 8))
sketch3.addConstraint(Sketcher.Constraint("Equal", 8, 9))
sketch3.addConstraint(Sketcher.Constraint("Equal", 9, 10))
sketch3.addConstraint(Sketcher.Constraint("Equal", 10, 11))
sketch3.addConstraint(Sketcher.Constraint("Equal", 11, 12))
sketch3.addConstraint(Sketcher.Constraint("Equal", 12, 13))
sketch3.addConstraint(Sketcher.Constraint("Equal", 13, 14))
sketch3.addConstraint(Sketcher.Constraint("Equal", 14, 15))
sketch3.addConstraint(Sketcher.Constraint("Equal", 15, 16))
sketch3.addConstraint(Sketcher.Constraint("Equal", 16, 17))
sketch3.addConstraint(Sketcher.Constraint("Equal", 17, 18))
sketch3.addConstraint(Sketcher.Constraint("Equal", 18, 19))
sketch3.addConstraint(Sketcher.Constraint("Equal", 19, 20))
sketch3.addConstraint(Sketcher.Constraint("Equal", 20, 21))
sketch3.addConstraint(Sketcher.Constraint("Equal", 21, 22))
sketch3.addConstraint(Sketcher.Constraint("Equal", 22, 23))
sketch3.addConstraint(Sketcher.Constraint("Equal", 23, 24))
sketch3.addConstraint(Sketcher.Constraint("Equal", 24, 25))
sketch3.addConstraint(Sketcher.Constraint("Equal", 25, 26))
sketch3.addConstraint(Sketcher.Constraint("Equal", 26, 27))
sketch3.addConstraint(Sketcher.Constraint("Equal", 27, 28))
sketch3.addConstraint(Sketcher.Constraint("Equal", 28, 29))
sketch3.addConstraint(Sketcher.Constraint("Equal", 29, 30))
sketch3.addConstraint(Sketcher.Constraint("Equal", 30, 31))
sketch3.addConstraint(Sketcher.Constraint("Equal", 31, 32))
sketch3.addConstraint(Sketcher.Constraint("Equal", 32, 33))
sketch3.addConstraint(Sketcher.Constraint("Equal", 33, 34))
sketch3.addConstraint(Sketcher.Constraint("Equal", 34, 35))
sketch3.addConstraint(Sketcher.Constraint("Equal", 35, 36))
sketch3.addConstraint(Sketcher.Constraint("Equal", 36, 37))
sketch3.addConstraint(Sketcher.Constraint("Equal", 37, 38))
sketch3.addConstraint(Sketcher.Constraint("Equal", 38, 39))
sketch3.addConstraint(Sketcher.Constraint("Equal", 39, 40))
sketch3.addConstraint(Sketcher.Constraint("Equal", 40, 41))
sketch3.addConstraint(Sketcher.Constraint("Equal", 41, 42))
sketch3.addConstraint(Sketcher.Constraint("Equal", 42, 43))
sketch3.addConstraint(Sketcher.Constraint("Equal", 43, 44))
sketch3.addConstraint(Sketcher.Constraint("Equal", 44, 45))
sketch3.addConstraint(Sketcher.Constraint("Equal", 45, 46))
sketch3.addConstraint(Sketcher.Constraint("Equal", 46, 47))
sketch3.addConstraint(Sketcher.Constraint("Equal", 47, 48))
sketch3.addConstraint(Sketcher.Constraint("Equal", 48, 49))
sketch3.addConstraint(Sketcher.Constraint("Equal", 49, 50))
sketch3.addConstraint(Sketcher.Constraint("Equal", 50, 51))
sketch3.addConstraint(Sketcher.Constraint("Equal", 51, 52))
sketch3.addConstraint(Sketcher.Constraint("Equal", 52, 53))
sketch3.addConstraint(Sketcher.Constraint("Equal", 53, 54))
sketch3.addConstraint(Sketcher.Constraint("Equal", 54, 55))
sketch3.addConstraint(Sketcher.Constraint("Equal", 55, 56))
sketch3.addConstraint(Sketcher.Constraint("Equal", 56, 57))
sketch3.addConstraint(Sketcher.Constraint("Equal", 57, 58))
sketch3.addConstraint(Sketcher.Constraint("Equal", 58, 59))
sketch3.addConstraint(Sketcher.Constraint("PointOnObject", 0, 3, -2))
sketch3.addConstraint(Sketcher.Constraint("PointOnObject", 1, 3, -2))
sketch3.addConstraint(Sketcher.Constraint("PointOnObject", 2, 3, -2))
sketch3.addConstraint(Sketcher.Constraint("PointOnObject", 3, 3, -2))
sketch3.addConstraint(Sketcher.Constraint("PointOnObject", 4, 3, -2))
sketch3.addConstraint(Sketcher.Constraint("PointOnObject", 5, 3, -2))
sketch3.addConstraint(Sketcher.Constraint("PointOnObject", 6, 3, -2))
sketch3.addConstraint(Sketcher.Constraint("PointOnObject", 7, 3, -2))
sketch3.addConstraint(Sketcher.Constraint("PointOnObject", 8, 3, -2))
sketch3.addConstraint(Sketcher.Constraint("PointOnObject", 9, 3, -2))
sketch3.addConstraint(Sketcher.Constraint("PointOnObject", 10, 3, -2))
sketch3.addConstraint(Sketcher.Constraint("PointOnObject", 11, 3, -2))
sketch3.addConstraint(Sketcher.Constraint("PointOnObject", 12, 3, -2))
sketch3.addConstraint(Sketcher.Constraint("PointOnObject", 13, 3, -2))
sketch3.addConstraint(Sketcher.Constraint("PointOnObject", 14, 3, -2))
sketch3.addConstraint(Sketcher.Constraint("PointOnObject", 15, 3, -2))
sketch3.addConstraint(Sketcher.Constraint("PointOnObject", 16, 3, -2))
sketch3.addConstraint(Sketcher.Constraint("PointOnObject", 17, 3, -2))
sketch3.addConstraint(Sketcher.Constraint("PointOnObject", 18, 3, -2))
sketch3.addConstraint(Sketcher.Constraint("PointOnObject", 19, 3, -2))
sketch3.addConstraint(Sketcher.Constraint("PointOnObject", 20, 3, -2))
sketch3.addConstraint(Sketcher.Constraint("PointOnObject", 21, 3, -2))
sketch3.addConstraint(Sketcher.Constraint("PointOnObject", 22, 3, -2))
sketch3.addConstraint(Sketcher.Constraint("PointOnObject", 23, 3, -2))
sketch3.addConstraint(Sketcher.Constraint("PointOnObject", 24, 3, -2))
sketch3.addConstraint(Sketcher.Constraint("PointOnObject", 25, 3, -2))
sketch3.addConstraint(Sketcher.Constraint("PointOnObject", 26, 3, -2))
sketch3.addConstraint(Sketcher.Constraint("PointOnObject", 27, 3, -2))
sketch3.addConstraint(Sketcher.Constraint("PointOnObject", 28, 3, -2))
sketch3.addConstraint(Sketcher.Constraint("PointOnObject", 29, 3, -2))
sketch3.addConstraint(Sketcher.Constraint("PointOnObject", 30, 3, -2))
sketch3.addConstraint(Sketcher.Constraint("PointOnObject", 31, 3, -2))
sketch3.addConstraint(Sketcher.Constraint("PointOnObject", 32, 3, -2))
sketch3.addConstraint(Sketcher.Constraint("PointOnObject", 33, 3, -2))
sketch3.addConstraint(Sketcher.Constraint("PointOnObject", 34, 3, -2))
sketch3.addConstraint(Sketcher.Constraint("PointOnObject", 35, 3, -2))
sketch3.addConstraint(Sketcher.Constraint("PointOnObject", 36, 3, -2))
sketch3.addConstraint(Sketcher.Constraint("PointOnObject", 37, 3, -2))
sketch3.addConstraint(Sketcher.Constraint("PointOnObject", 38, 3, -2))
sketch3.addConstraint(Sketcher.Constraint("PointOnObject", 39, 3, -2))
sketch3.addConstraint(Sketcher.Constraint("PointOnObject", 40, 3, -2))
sketch3.addConstraint(Sketcher.Constraint("PointOnObject", 41, 3, -2))
sketch3.addConstraint(Sketcher.Constraint("PointOnObject", 42, 3, -2))
sketch3.addConstraint(Sketcher.Constraint("PointOnObject", 43, 3, -2))
sketch3.addConstraint(Sketcher.Constraint("PointOnObject", 44, 3, -2))
sketch3.addConstraint(Sketcher.Constraint("PointOnObject", 45, 3, -2))
sketch3.addConstraint(Sketcher.Constraint("PointOnObject", 46, 3, -2))
sketch3.addConstraint(Sketcher.Constraint("PointOnObject", 47, 3, -2))
sketch3.addConstraint(Sketcher.Constraint("PointOnObject", 48, 3, -2))
sketch3.addConstraint(Sketcher.Constraint("PointOnObject", 49, 3, -2))
sketch3.addConstraint(Sketcher.Constraint("PointOnObject", 50, 3, -2))
sketch3.addConstraint(Sketcher.Constraint("PointOnObject", 51, 3, -2))
sketch3.addConstraint(Sketcher.Constraint("PointOnObject", 52, 3, -2))
sketch3.addConstraint(Sketcher.Constraint("PointOnObject", 53, 3, -2))
sketch3.addConstraint(Sketcher.Constraint("PointOnObject", 54, 3, -2))
sketch3.addConstraint(Sketcher.Constraint("PointOnObject", 55, 3, -2))
sketch3.addConstraint(Sketcher.Constraint("PointOnObject", 56, 3, -2))
sketch3.addConstraint(Sketcher.Constraint("PointOnObject", 57, 3, -2))
sketch3.addConstraint(Sketcher.Constraint("PointOnObject", 58, 3, -2))
sketch3.addConstraint(Sketcher.Constraint("PointOnObject", 59, 3, -2))
sketch3.addConstraint(Sketcher.Constraint("Diameter", 0, 6.0))
sketch3.addConstraint(Sketcher.Constraint("DistanceY", 0, 3, 1, 3, 20.0))
sketch3.addConstraint(Sketcher.Constraint("DistanceY", 1, 3, 2, 3, 20.0))
sketch3.addConstraint(Sketcher.Constraint("DistanceY", 2, 3, 3, 3, 20.0))
sketch3.addConstraint(Sketcher.Constraint("DistanceY", 3, 3, 4, 3, 20.0))
sketch3.addConstraint(Sketcher.Constraint("DistanceY", 4, 3, 5, 3, 20.0))
sketch3.addConstraint(Sketcher.Constraint("DistanceY", 5, 3, 6, 3, 20.0))
sketch3.addConstraint(Sketcher.Constraint("DistanceY", 6, 3, 7, 3, 20.0))
sketch3.addConstraint(Sketcher.Constraint("DistanceY", 7, 3, 8, 3, 20.0))
sketch3.addConstraint(Sketcher.Constraint("DistanceY", 8, 3, 9, 3, 20.0))
sketch3.addConstraint(Sketcher.Constraint("DistanceY", 9, 3, 10, 3, 20.0))
sketch3.addConstraint(Sketcher.Constraint("DistanceY", 10, 3, 11, 3, 20.0))
sketch3.addConstraint(Sketcher.Constraint("DistanceY", 11, 3, 12, 3, 20.0))
sketch3.addConstraint(Sketcher.Constraint("DistanceY", 12, 3, 13, 3, 20.0))
sketch3.addConstraint(Sketcher.Constraint("DistanceY", 13, 3, 14, 3, 20.0))
sketch3.addConstraint(Sketcher.Constraint("DistanceY", 14, 3, 15, 3, 20.0))
sketch3.addConstraint(Sketcher.Constraint("DistanceY", 15, 3, 16, 3, 20.0))
sketch3.addConstraint(Sketcher.Constraint("DistanceY", 16, 3, 17, 3, 20.0))
sketch3.addConstraint(Sketcher.Constraint("DistanceY", 17, 3, 18, 3, 20.0))
sketch3.addConstraint(Sketcher.Constraint("DistanceY", 18, 3, 19, 3, 20.0))
sketch3.addConstraint(Sketcher.Constraint("DistanceY", 19, 3, 20, 3, 20.0))
sketch3.addConstraint(Sketcher.Constraint("DistanceY", 20, 3, 21, 3, 20.0))
sketch3.addConstraint(Sketcher.Constraint("DistanceY", 21, 3, 22, 3, 20.0))
sketch3.addConstraint(Sketcher.Constraint("DistanceY", 22, 3, 23, 3, 20.0))
sketch3.addConstraint(Sketcher.Constraint("DistanceY", 23, 3, 24, 3, 20.0))
sketch3.addConstraint(Sketcher.Constraint("DistanceY", 24, 3, 25, 3, 20.0))
sketch3.addConstraint(Sketcher.Constraint("DistanceY", 25, 3, 26, 3, 20.0))
sketch3.addConstraint(Sketcher.Constraint("DistanceY", 26, 3, 27, 3, 20.0))
sketch3.addConstraint(Sketcher.Constraint("DistanceY", 27, 3, 28, 3, 20.0))
sketch3.addConstraint(Sketcher.Constraint("DistanceY", 28, 3, 29, 3, 20.0))
sketch3.addConstraint(Sketcher.Constraint("DistanceY", 29, 3, 30, 3, 20.0))
sketch3.addConstraint(Sketcher.Constraint("DistanceY", 30, 3, 31, 3, 20.0))
sketch3.addConstraint(Sketcher.Constraint("DistanceY", 31, 3, 32, 3, 20.0))
sketch3.addConstraint(Sketcher.Constraint("DistanceY", 32, 3, 33, 3, 20.0))
sketch3.addConstraint(Sketcher.Constraint("DistanceY", 33, 3, 34, 3, 20.0))
sketch3.addConstraint(Sketcher.Constraint("DistanceY", 34, 3, 35, 3, 20.0))
sketch3.addConstraint(Sketcher.Constraint("DistanceY", 35, 3, 36, 3, 20.0))
sketch3.addConstraint(Sketcher.Constraint("DistanceY", 36, 3, 37, 3, 20.0))
sketch3.addConstraint(Sketcher.Constraint("DistanceY", 37, 3, 38, 3, 20.0))
sketch3.addConstraint(Sketcher.Constraint("DistanceY", 38, 3, 39, 3, 20.0))
sketch3.addConstraint(Sketcher.Constraint("DistanceY", 39, 3, 40, 3, 20.0))
sketch3.addConstraint(Sketcher.Constraint("DistanceY", 40, 3, 41, 3, 20.0))
sketch3.addConstraint(Sketcher.Constraint("DistanceY", 41, 3, 42, 3, 20.0))
sketch3.addConstraint(Sketcher.Constraint("DistanceY", 42, 3, 43, 3, 20.0))
sketch3.addConstraint(Sketcher.Constraint("DistanceY", 43, 3, 44, 3, 20.0))
sketch3.addConstraint(Sketcher.Constraint("DistanceY", 44, 3, 45, 3, 20.0))
sketch3.addConstraint(Sketcher.Constraint("DistanceY", 45, 3, 46, 3, 20.0))
sketch3.addConstraint(Sketcher.Constraint("DistanceY", 46, 3, 47, 3, 20.0))
sketch3.addConstraint(Sketcher.Constraint("DistanceY", 47, 3, 48, 3, 20.0))
sketch3.addConstraint(Sketcher.Constraint("DistanceY", 48, 3, 49, 3, 20.0))
sketch3.addConstraint(Sketcher.Constraint("DistanceY", 49, 3, 50, 3, 20.0))
sketch3.addConstraint(Sketcher.Constraint("DistanceY", 50, 3, 51, 3, 20.0))
sketch3.addConstraint(Sketcher.Constraint("DistanceY", 51, 3, 52, 3, 20.0))
sketch3.addConstraint(Sketcher.Constraint("DistanceY", 52, 3, 53, 3, 20.0))
sketch3.addConstraint(Sketcher.Constraint("DistanceY", 53, 3, 54, 3, 20.0))
sketch3.addConstraint(Sketcher.Constraint("DistanceY", 54, 3, 55, 3, 20.0))
sketch3.addConstraint(Sketcher.Constraint("DistanceY", 55, 3, 56, 3, 20.0))
sketch3.addConstraint(Sketcher.Constraint("DistanceY", 56, 3, 57, 3, 20.0))
sketch3.addConstraint(Sketcher.Constraint("DistanceY", 57, 3, 58, 3, 20.0))
sketch3.addConstraint(Sketcher.Constraint("DistanceY", 58, 3, 59, 3, 20.0))
sketch3.addConstraint(Sketcher.Constraint("DistanceY", 0, 3, -1, 1, 81.764833))
sketch3.setExpression("Constraints[119]", "Params.sketch3_diameter")
pocket2 = doc.addObject("PartDesign::Pocket", "Pocket001")
body.addObject(pocket2)
pocket2.Profile = sketch3
pocket2.setExpression("Length", "Params.pocket2_length")
pocket2.Reversed = True

doc.recompute()
